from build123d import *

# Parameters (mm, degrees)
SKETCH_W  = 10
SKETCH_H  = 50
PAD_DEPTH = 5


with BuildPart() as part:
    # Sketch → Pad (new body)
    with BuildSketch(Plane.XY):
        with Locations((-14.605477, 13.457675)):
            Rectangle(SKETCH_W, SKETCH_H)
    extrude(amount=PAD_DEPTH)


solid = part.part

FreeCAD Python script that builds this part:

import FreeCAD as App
import Part
import Sketcher
Q = App.Units.Quantity


def add_polygon(sketch, points):
    """Adds a closed chain of lines whose ends are joined by coincident constraints."""
    first, n = sketch.GeometryCount, len(points)
    for a, b in zip(points, points[1:] + points[:1]):
        sketch.addGeometry(Part.LineSegment(App.Vector(*a, 0), App.Vector(*b, 0)), False)
    for i in range(n):
        sketch.addConstraint(Sketcher.Constraint("Coincident", first + i, 2, first + (i + 1) % n, 1))

doc = App.newDocument("Part")
body = doc.addObject("PartDesign::Body", "Body")

sketch1 = body.newObject("Sketcher::SketchObject", "Sketch")
sketch1.AttachmentSupport = (doc.getObject("XY_Plane"), [""])
sketch1.MapMode = "FlatFace"
add_polygon(sketch1, [(-20, 38), (-20, -12), (-10, -12), (-10, 38)])
sketch1.addConstraint([
    Sketcher.Constraint("Vertical", 0),
    Sketcher.Constraint("Horizontal", 1),
    Sketcher.Constraint("Vertical", 2),
    Sketcher.Constraint("Horizontal", 3),
    Sketcher.Constraint("DistanceX", 1, 1, 1, 2, Q("10 mm")),
    Sketcher.Constraint("DistanceY", 0, 2, 0, 1, Q("50 mm")),
    Sketcher.Constraint("DistanceX", 0, 2, -1, 1, Q("19.605477 mm")),
    Sketcher.Constraint("DistanceY", 0, 2, -1, 1, Q("11.542325 mm")),
])
pad1 = body.newObject("PartDesign::Pad", "Pad")
pad1.Profile = sketch1
pad1.Length = 5

doc.recompute()
